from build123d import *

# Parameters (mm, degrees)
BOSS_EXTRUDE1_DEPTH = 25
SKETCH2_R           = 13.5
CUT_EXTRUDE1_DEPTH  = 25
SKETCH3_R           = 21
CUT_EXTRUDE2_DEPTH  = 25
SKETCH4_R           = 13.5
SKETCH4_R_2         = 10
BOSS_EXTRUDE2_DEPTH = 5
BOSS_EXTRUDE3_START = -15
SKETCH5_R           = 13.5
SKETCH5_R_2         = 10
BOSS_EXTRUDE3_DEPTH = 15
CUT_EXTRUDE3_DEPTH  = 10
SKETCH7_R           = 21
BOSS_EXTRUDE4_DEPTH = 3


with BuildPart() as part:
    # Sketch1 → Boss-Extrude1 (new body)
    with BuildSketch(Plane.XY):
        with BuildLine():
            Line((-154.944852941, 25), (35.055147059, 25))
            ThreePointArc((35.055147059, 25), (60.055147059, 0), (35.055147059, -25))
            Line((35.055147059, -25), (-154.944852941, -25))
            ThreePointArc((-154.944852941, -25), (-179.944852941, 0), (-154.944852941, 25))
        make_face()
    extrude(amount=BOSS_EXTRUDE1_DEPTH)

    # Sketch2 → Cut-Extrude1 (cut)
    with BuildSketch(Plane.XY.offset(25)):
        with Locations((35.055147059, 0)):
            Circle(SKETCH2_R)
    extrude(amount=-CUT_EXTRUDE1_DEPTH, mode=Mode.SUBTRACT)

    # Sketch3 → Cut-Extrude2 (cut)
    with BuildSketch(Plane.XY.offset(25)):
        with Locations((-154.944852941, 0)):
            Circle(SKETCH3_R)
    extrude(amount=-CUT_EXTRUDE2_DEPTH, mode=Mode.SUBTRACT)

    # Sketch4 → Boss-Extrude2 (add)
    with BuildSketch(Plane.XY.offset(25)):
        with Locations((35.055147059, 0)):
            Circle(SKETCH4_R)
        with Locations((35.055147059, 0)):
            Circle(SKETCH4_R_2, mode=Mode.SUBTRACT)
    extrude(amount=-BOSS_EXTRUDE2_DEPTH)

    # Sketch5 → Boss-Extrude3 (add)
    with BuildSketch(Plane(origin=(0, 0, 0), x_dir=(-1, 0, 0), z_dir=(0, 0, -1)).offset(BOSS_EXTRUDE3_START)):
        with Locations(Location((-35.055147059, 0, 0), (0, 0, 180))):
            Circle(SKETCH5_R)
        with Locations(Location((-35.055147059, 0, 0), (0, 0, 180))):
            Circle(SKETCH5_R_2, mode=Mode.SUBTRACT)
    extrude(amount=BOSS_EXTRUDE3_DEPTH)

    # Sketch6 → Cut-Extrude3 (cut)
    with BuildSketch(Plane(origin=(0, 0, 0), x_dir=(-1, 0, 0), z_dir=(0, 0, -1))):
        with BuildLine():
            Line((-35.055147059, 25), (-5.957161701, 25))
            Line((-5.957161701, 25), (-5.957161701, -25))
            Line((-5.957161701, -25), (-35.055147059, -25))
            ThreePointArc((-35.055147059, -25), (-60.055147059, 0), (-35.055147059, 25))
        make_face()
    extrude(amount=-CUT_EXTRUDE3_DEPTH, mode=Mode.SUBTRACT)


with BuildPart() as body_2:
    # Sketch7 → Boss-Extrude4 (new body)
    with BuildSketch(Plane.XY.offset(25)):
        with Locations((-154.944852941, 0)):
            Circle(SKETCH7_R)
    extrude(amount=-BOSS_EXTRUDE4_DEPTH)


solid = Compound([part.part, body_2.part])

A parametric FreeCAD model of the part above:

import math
import FreeCAD as App
import Part
import Sketcher
from FreeCAD import Vector

doc = App.newDocument("Part")
body = doc.addObject("PartDesign::Body", "Body")

# Sketch on XY plane
sketch1 = body.newObject("Sketcher::SketchObject", "Sketch")
sketch1.AttachmentSupport = (doc.getObject("XY_Plane"), [""])
sketch1.MapMode = "FlatFace"
sketch1.addGeometry([
    Part.LineSegment(Vector(35, 25, 0), Vector(-155, 25, 0)),
    Part.ArcOfCircle(Part.Circle(Vector(-155, 0, 0), Vector(0, 0, 1), 25), math.radians(90), math.radians(270)),
    Part.LineSegment(Vector(-155, -25, 0), Vector(35, -25, 0)),
    Part.ArcOfCircle(Part.Circle(Vector(35, 0, 0), Vector(0, 0, 1), 25), math.radians(-90), math.radians(90)),
], False)
sketch1.addConstraint([
    Sketcher.Constraint("Tangent", 0, 2, 1, 1),
    Sketcher.Constraint("Tangent", 1, 2, 2, 1),
    Sketcher.Constraint("Tangent", 2, 2, 3, 1),
    Sketcher.Constraint("Tangent", 3, 2, 0, 1),
    Sketcher.Constraint("Horizontal", 0),
    Sketcher.Constraint("Horizontal", 2),
    Sketcher.Constraint("PointOnObject", 1, 3, -1),
    Sketcher.Constraint("Radius", 1, 25.0),
    Sketcher.Constraint("DistanceX", 0, 2, 0, 1, 190.0),
    Sketcher.Constraint("DistanceX", 1, 3, -1, 1, 154.944853),
])
pad1 = body.newObject("PartDesign::Pad", "Pad")
pad1.Profile = sketch1
pad1.Length = 25

# Sketch on XY plane
sketch2 = body.newObject("Sketcher::SketchObject", "Sketch001")
sketch2.AttachmentSupport = (doc.getObject("XY_Plane"), [""])
sketch2.MapMode = "FlatFace"
sketch2.AttachmentOffset = App.Placement(Vector(0, 0, 25), App.Rotation())
sketch2.addGeometry(Part.Circle(Vector(35, 0, 0), Vector(0, 0, 1), 14), False)
sketch2.addConstraint([
    Sketcher.Constraint("PointOnObject", 0, 3, -1),
    Sketcher.Constraint("Diameter", 0, 27.0),
    Sketcher.Constraint("DistanceX", -1, 1, 0, 3, 35.055147),
])
pocket1 = body.newObject("PartDesign::Pocket", "Pocket")
pocket1.Profile = sketch2
pocket1.Length = 25

# Sketch on XY plane
sketch3 = body.newObject("Sketcher::SketchObject", "Sketch002")
sketch3.AttachmentSupport = (doc.getObject("XY_Plane"), [""])
sketch3.MapMode = "FlatFace"
sketch3.AttachmentOffset = App.Placement(Vector(0, 0, 25), App.Rotation())
sketch3.addGeometry(Part.Circle(Vector(-155, 0, 0), Vector(0, 0, 1), 21), False)
sketch3.addConstraint([
    Sketcher.Constraint("PointOnObject", 0, 3, -1),
    Sketcher.Constraint("Diameter", 0, 42.0),
    Sketcher.Constraint("DistanceX", 0, 3, -1, 1, 154.944853),
])
pocket2 = body.newObject("PartDesign::Pocket", "Pocket001")
pocket2.Profile = sketch3
pocket2.Length = 25

# Sketch on XY plane
sketch4 = body.newObject("Sketcher::SketchObject", "Sketch003")
sketch4.AttachmentSupport = (doc.getObject("XY_Plane"), [""])
sketch4.MapMode = "FlatFace"
sketch4.AttachmentOffset = App.Placement(Vector(0, 0, 25), App.Rotation())
sketch4.addGeometry([
    Part.Circle(Vector(35, 0, 0), Vector(0, 0, 1), 14),
    Part.Circle(Vector(35, 0, 0), Vector(0, 0, 1), 10),
], False)
sketch4.addConstraint([
    Sketcher.Constraint("Coincident", 1, 3, 0, 3),
    Sketcher.Constraint("PointOnObject", 0, 3, -1),
    Sketcher.Constraint("Diameter", 0, 27.0),
    Sketcher.Constraint("Diameter", 1, 20.0),
    Sketcher.Constraint("DistanceX", -1, 1, 0, 3, 35.055147),
])
pad2 = body.newObject("PartDesign::Pad", "Pad001")
pad2.Profile = sketch4
pad2.Length = 5
pad2.Reversed = True

# Sketch on XY plane
sketch5 = body.newObject("Sketcher::SketchObject", "Sketch004")
sketch5.AttachmentSupport = (doc.getObject("XY_Plane"), [""])
sketch5.MapMode = "FlatFace"
sketch5.AttachmentOffset = App.Placement(Vector(0, 0, 15), App.Rotation())
sketch5.addGeometry([
    Part.Circle(Vector(35, 0, 0), Vector(0, 0, 1), 14),
    Part.Circle(Vector(35, 0, 0), Vector(0, 0, 1), 10),
], False)
sketch5.addConstraint([
    Sketcher.Constraint("Coincident", 1, 3, 0, 3),
    Sketcher.Constraint("PointOnObject", 0, 3, -1),
    Sketcher.Constraint("Diameter", 0, 27.0),
    Sketcher.Constraint("Diameter", 1, 20.0),
    Sketcher.Constraint("DistanceX", -1, 1, 0, 3, 35.055147),
])
pad3 = body.newObject("PartDesign::Pad", "Pad002")
pad3.Profile = sketch5
pad3.Length = 15
pad3.Reversed = True

# Sketch on XY plane
sketch6 = body.newObject("Sketcher::SketchObject", "Sketch005")
sketch6.AttachmentSupport = (doc.getObject("XY_Plane"), [""])
sketch6.MapMode = "FlatFace"
sketch6.addGeometry([
    Part.LineSegment(Vector(6, 25, 0), Vector(35, 25, 0)),
    Part.ArcOfCircle(Part.Circle(Vector(35, 0, 0), Vector(0, 0, 1), 25), math.radians(-90), math.radians(90)),
    Part.LineSegment(Vector(35, -25, 0), Vector(6, -25, 0)),
    Part.LineSegment(Vector(6, -25, 0), Vector(6, 25, 0)),
], False)
sketch6.addConstraint([
    Sketcher.Constraint("Tangent", 0, 2, 1, 2),
    Sketcher.Constraint("Tangent", 1, 1, 2, 1),
    Sketcher.Constraint("Coincident", 2, 2, 3, 1),
    Sketcher.Constraint("Coincident", 3, 2, 0, 1),
    Sketcher.Constraint("Horizontal", 0),
    Sketcher.Constraint("Horizontal", 2),
    Sketcher.Constraint("Vertical", 3),
    Sketcher.Constraint("PointOnObject", 1, 3, -1),
    Sketcher.Constraint("Radius", 1, 25.0),
    Sketcher.Constraint("DistanceX", 0, 1, 0, 2, 29.097985),
    Sketcher.Constraint("DistanceX", -1, 1, 2, 2, 5.957162),
])
pocket3 = body.newObject("PartDesign::Pocket", "Pocket002")
pocket3.Profile = sketch6
pocket3.Length = 10
pocket3.Reversed = True
body2 = doc.addObject("PartDesign::Body", "Body001")

# Sketch on XY plane
sketch7 = body2.newObject("Sketcher::SketchObject", "Sketch006")
sketch7.AttachmentSupport = (doc.getObject("XY_Plane001"), [""])
sketch7.MapMode = "FlatFace"
sketch7.AttachmentOffset = App.Placement(Vector(0, 0, 25), App.Rotation())
sketch7.addGeometry(Part.Circle(Vector(-155, 0, 0), Vector(0, 0, 1), 21), False)
sketch7.addConstraint([
    Sketcher.Constraint("PointOnObject", 0, 3, -1),
    Sketcher.Constraint("Diameter", 0, 42.0),
    Sketcher.Constraint("DistanceX", 0, 3, -1, 1, 154.944853),
])
pad4 = body2.newObject("PartDesign::Pad", "Pad003")
pad4.Profile = sketch7
pad4.Length = 3
pad4.Reversed = True

doc.recompute()
